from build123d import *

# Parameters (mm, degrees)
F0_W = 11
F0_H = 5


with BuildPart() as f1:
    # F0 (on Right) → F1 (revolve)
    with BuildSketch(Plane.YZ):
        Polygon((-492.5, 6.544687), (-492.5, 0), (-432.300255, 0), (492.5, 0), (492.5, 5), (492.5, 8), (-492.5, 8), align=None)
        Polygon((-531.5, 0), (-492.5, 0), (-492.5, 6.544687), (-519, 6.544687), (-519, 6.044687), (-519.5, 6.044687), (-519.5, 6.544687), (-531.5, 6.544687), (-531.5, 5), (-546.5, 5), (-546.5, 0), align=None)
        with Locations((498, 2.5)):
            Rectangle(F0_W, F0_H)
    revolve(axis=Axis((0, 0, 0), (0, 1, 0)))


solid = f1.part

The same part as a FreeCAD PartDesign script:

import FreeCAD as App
import Part
import Sketcher
from FreeCAD import Vector


def add_polygon(sketch, points):
    """Adds a closed chain of lines whose ends are joined by coincident constraints."""
    first, n = sketch.GeometryCount, len(points)
    for a, b in zip(points, points[1:] + points[:1]):
        sketch.addGeometry(Part.LineSegment(App.Vector(*a, 0), App.Vector(*b, 0)), False)
    for i in range(n):
        sketch.addConstraint(Sketcher.Constraint("Coincident", first + i, 2, first + (i + 1) % n, 1))

doc = App.newDocument("Part")
body = doc.addObject("PartDesign::Body", "Body")

# Sketch on YZ plane
sketch1 = body.newObject("Sketcher::SketchObject", "Sketch")
sketch1.AttachmentSupport = (doc.getObject("YZ_Plane"), [""])
sketch1.MapMode = "FlatFace"
add_polygon(sketch1, [(492.5, 5), (492.5, 8), (-492.5, 8), (-492.5, 6.544687), (-519, 6.544687), (-519, 6.044687), (-519.5, 6.044687), (-519.5, 6.544687), (-531.5, 6.544687), (-531.5, 5), (-546.5, 5), (-546.5, 0), (503.5, 0), (503.5, 5)])  # lines 0-13
sketch1.addConstraint([
    Sketcher.Constraint("Vertical", 0),
    Sketcher.Constraint("Horizontal", 1),
    Sketcher.Constraint("Vertical", 2),
    Sketcher.Constraint("Horizontal", 3),
    Sketcher.Constraint("Vertical", 4),
    Sketcher.Constraint("Horizontal", 5),
    Sketcher.Constraint("Vertical", 6),
    Sketcher.Constraint("Horizontal", 7),
    Sketcher.Constraint("Vertical", 8),
    Sketcher.Constraint("Horizontal", 9),
    Sketcher.Constraint("Vertical", 10),
    Sketcher.Constraint("Horizontal", 11),
    Sketcher.Constraint("Vertical", 12),
    Sketcher.Constraint("Horizontal", 13),
    Sketcher.Constraint("PointOnObject", 10, 2, -1),
    Sketcher.Constraint("Horizontal", 3, 2, 6, 2),
    Sketcher.Constraint("Horizontal", 9, 2, 12, 2),
    Sketcher.Constraint("Equal", 5, 4),
    Sketcher.Constraint("DistanceX", 1, 2, 1, 1, 985.0),
    Sketcher.Constraint("DistanceX", 7, 2, 7, 1, 12.0),
    Sketcher.Constraint("DistanceX", 9, 2, 9, 1, 15.0),
    Sketcher.Constraint("DistanceX", 11, 1, 11, 2, 1050.0),
    Sketcher.Constraint("DistanceX", 13, 2, 13, 1, 11.0),
    Sketcher.Constraint("DistanceY", 0, 1, 0, 2, 3.0),
    Sketcher.Constraint("DistanceY", 10, 2, 10, 1, 5.0),
    Sketcher.Constraint("DistanceX", 3, 2, 3, 1, 26.5),
    Sketcher.Constraint("DistanceX", 3, 2, -1, 1, 519.0),
    Sketcher.Constraint("DistanceY", 2, 2, 2, 1, 1.455313),
])
revolution = body.newObject("PartDesign::Revolution", "Revolution")
revolution.Profile = sketch1
revolution.ReferenceAxis = (sketch1, ["H_Axis"])
revolution.Angle = 360

doc.recompute()
